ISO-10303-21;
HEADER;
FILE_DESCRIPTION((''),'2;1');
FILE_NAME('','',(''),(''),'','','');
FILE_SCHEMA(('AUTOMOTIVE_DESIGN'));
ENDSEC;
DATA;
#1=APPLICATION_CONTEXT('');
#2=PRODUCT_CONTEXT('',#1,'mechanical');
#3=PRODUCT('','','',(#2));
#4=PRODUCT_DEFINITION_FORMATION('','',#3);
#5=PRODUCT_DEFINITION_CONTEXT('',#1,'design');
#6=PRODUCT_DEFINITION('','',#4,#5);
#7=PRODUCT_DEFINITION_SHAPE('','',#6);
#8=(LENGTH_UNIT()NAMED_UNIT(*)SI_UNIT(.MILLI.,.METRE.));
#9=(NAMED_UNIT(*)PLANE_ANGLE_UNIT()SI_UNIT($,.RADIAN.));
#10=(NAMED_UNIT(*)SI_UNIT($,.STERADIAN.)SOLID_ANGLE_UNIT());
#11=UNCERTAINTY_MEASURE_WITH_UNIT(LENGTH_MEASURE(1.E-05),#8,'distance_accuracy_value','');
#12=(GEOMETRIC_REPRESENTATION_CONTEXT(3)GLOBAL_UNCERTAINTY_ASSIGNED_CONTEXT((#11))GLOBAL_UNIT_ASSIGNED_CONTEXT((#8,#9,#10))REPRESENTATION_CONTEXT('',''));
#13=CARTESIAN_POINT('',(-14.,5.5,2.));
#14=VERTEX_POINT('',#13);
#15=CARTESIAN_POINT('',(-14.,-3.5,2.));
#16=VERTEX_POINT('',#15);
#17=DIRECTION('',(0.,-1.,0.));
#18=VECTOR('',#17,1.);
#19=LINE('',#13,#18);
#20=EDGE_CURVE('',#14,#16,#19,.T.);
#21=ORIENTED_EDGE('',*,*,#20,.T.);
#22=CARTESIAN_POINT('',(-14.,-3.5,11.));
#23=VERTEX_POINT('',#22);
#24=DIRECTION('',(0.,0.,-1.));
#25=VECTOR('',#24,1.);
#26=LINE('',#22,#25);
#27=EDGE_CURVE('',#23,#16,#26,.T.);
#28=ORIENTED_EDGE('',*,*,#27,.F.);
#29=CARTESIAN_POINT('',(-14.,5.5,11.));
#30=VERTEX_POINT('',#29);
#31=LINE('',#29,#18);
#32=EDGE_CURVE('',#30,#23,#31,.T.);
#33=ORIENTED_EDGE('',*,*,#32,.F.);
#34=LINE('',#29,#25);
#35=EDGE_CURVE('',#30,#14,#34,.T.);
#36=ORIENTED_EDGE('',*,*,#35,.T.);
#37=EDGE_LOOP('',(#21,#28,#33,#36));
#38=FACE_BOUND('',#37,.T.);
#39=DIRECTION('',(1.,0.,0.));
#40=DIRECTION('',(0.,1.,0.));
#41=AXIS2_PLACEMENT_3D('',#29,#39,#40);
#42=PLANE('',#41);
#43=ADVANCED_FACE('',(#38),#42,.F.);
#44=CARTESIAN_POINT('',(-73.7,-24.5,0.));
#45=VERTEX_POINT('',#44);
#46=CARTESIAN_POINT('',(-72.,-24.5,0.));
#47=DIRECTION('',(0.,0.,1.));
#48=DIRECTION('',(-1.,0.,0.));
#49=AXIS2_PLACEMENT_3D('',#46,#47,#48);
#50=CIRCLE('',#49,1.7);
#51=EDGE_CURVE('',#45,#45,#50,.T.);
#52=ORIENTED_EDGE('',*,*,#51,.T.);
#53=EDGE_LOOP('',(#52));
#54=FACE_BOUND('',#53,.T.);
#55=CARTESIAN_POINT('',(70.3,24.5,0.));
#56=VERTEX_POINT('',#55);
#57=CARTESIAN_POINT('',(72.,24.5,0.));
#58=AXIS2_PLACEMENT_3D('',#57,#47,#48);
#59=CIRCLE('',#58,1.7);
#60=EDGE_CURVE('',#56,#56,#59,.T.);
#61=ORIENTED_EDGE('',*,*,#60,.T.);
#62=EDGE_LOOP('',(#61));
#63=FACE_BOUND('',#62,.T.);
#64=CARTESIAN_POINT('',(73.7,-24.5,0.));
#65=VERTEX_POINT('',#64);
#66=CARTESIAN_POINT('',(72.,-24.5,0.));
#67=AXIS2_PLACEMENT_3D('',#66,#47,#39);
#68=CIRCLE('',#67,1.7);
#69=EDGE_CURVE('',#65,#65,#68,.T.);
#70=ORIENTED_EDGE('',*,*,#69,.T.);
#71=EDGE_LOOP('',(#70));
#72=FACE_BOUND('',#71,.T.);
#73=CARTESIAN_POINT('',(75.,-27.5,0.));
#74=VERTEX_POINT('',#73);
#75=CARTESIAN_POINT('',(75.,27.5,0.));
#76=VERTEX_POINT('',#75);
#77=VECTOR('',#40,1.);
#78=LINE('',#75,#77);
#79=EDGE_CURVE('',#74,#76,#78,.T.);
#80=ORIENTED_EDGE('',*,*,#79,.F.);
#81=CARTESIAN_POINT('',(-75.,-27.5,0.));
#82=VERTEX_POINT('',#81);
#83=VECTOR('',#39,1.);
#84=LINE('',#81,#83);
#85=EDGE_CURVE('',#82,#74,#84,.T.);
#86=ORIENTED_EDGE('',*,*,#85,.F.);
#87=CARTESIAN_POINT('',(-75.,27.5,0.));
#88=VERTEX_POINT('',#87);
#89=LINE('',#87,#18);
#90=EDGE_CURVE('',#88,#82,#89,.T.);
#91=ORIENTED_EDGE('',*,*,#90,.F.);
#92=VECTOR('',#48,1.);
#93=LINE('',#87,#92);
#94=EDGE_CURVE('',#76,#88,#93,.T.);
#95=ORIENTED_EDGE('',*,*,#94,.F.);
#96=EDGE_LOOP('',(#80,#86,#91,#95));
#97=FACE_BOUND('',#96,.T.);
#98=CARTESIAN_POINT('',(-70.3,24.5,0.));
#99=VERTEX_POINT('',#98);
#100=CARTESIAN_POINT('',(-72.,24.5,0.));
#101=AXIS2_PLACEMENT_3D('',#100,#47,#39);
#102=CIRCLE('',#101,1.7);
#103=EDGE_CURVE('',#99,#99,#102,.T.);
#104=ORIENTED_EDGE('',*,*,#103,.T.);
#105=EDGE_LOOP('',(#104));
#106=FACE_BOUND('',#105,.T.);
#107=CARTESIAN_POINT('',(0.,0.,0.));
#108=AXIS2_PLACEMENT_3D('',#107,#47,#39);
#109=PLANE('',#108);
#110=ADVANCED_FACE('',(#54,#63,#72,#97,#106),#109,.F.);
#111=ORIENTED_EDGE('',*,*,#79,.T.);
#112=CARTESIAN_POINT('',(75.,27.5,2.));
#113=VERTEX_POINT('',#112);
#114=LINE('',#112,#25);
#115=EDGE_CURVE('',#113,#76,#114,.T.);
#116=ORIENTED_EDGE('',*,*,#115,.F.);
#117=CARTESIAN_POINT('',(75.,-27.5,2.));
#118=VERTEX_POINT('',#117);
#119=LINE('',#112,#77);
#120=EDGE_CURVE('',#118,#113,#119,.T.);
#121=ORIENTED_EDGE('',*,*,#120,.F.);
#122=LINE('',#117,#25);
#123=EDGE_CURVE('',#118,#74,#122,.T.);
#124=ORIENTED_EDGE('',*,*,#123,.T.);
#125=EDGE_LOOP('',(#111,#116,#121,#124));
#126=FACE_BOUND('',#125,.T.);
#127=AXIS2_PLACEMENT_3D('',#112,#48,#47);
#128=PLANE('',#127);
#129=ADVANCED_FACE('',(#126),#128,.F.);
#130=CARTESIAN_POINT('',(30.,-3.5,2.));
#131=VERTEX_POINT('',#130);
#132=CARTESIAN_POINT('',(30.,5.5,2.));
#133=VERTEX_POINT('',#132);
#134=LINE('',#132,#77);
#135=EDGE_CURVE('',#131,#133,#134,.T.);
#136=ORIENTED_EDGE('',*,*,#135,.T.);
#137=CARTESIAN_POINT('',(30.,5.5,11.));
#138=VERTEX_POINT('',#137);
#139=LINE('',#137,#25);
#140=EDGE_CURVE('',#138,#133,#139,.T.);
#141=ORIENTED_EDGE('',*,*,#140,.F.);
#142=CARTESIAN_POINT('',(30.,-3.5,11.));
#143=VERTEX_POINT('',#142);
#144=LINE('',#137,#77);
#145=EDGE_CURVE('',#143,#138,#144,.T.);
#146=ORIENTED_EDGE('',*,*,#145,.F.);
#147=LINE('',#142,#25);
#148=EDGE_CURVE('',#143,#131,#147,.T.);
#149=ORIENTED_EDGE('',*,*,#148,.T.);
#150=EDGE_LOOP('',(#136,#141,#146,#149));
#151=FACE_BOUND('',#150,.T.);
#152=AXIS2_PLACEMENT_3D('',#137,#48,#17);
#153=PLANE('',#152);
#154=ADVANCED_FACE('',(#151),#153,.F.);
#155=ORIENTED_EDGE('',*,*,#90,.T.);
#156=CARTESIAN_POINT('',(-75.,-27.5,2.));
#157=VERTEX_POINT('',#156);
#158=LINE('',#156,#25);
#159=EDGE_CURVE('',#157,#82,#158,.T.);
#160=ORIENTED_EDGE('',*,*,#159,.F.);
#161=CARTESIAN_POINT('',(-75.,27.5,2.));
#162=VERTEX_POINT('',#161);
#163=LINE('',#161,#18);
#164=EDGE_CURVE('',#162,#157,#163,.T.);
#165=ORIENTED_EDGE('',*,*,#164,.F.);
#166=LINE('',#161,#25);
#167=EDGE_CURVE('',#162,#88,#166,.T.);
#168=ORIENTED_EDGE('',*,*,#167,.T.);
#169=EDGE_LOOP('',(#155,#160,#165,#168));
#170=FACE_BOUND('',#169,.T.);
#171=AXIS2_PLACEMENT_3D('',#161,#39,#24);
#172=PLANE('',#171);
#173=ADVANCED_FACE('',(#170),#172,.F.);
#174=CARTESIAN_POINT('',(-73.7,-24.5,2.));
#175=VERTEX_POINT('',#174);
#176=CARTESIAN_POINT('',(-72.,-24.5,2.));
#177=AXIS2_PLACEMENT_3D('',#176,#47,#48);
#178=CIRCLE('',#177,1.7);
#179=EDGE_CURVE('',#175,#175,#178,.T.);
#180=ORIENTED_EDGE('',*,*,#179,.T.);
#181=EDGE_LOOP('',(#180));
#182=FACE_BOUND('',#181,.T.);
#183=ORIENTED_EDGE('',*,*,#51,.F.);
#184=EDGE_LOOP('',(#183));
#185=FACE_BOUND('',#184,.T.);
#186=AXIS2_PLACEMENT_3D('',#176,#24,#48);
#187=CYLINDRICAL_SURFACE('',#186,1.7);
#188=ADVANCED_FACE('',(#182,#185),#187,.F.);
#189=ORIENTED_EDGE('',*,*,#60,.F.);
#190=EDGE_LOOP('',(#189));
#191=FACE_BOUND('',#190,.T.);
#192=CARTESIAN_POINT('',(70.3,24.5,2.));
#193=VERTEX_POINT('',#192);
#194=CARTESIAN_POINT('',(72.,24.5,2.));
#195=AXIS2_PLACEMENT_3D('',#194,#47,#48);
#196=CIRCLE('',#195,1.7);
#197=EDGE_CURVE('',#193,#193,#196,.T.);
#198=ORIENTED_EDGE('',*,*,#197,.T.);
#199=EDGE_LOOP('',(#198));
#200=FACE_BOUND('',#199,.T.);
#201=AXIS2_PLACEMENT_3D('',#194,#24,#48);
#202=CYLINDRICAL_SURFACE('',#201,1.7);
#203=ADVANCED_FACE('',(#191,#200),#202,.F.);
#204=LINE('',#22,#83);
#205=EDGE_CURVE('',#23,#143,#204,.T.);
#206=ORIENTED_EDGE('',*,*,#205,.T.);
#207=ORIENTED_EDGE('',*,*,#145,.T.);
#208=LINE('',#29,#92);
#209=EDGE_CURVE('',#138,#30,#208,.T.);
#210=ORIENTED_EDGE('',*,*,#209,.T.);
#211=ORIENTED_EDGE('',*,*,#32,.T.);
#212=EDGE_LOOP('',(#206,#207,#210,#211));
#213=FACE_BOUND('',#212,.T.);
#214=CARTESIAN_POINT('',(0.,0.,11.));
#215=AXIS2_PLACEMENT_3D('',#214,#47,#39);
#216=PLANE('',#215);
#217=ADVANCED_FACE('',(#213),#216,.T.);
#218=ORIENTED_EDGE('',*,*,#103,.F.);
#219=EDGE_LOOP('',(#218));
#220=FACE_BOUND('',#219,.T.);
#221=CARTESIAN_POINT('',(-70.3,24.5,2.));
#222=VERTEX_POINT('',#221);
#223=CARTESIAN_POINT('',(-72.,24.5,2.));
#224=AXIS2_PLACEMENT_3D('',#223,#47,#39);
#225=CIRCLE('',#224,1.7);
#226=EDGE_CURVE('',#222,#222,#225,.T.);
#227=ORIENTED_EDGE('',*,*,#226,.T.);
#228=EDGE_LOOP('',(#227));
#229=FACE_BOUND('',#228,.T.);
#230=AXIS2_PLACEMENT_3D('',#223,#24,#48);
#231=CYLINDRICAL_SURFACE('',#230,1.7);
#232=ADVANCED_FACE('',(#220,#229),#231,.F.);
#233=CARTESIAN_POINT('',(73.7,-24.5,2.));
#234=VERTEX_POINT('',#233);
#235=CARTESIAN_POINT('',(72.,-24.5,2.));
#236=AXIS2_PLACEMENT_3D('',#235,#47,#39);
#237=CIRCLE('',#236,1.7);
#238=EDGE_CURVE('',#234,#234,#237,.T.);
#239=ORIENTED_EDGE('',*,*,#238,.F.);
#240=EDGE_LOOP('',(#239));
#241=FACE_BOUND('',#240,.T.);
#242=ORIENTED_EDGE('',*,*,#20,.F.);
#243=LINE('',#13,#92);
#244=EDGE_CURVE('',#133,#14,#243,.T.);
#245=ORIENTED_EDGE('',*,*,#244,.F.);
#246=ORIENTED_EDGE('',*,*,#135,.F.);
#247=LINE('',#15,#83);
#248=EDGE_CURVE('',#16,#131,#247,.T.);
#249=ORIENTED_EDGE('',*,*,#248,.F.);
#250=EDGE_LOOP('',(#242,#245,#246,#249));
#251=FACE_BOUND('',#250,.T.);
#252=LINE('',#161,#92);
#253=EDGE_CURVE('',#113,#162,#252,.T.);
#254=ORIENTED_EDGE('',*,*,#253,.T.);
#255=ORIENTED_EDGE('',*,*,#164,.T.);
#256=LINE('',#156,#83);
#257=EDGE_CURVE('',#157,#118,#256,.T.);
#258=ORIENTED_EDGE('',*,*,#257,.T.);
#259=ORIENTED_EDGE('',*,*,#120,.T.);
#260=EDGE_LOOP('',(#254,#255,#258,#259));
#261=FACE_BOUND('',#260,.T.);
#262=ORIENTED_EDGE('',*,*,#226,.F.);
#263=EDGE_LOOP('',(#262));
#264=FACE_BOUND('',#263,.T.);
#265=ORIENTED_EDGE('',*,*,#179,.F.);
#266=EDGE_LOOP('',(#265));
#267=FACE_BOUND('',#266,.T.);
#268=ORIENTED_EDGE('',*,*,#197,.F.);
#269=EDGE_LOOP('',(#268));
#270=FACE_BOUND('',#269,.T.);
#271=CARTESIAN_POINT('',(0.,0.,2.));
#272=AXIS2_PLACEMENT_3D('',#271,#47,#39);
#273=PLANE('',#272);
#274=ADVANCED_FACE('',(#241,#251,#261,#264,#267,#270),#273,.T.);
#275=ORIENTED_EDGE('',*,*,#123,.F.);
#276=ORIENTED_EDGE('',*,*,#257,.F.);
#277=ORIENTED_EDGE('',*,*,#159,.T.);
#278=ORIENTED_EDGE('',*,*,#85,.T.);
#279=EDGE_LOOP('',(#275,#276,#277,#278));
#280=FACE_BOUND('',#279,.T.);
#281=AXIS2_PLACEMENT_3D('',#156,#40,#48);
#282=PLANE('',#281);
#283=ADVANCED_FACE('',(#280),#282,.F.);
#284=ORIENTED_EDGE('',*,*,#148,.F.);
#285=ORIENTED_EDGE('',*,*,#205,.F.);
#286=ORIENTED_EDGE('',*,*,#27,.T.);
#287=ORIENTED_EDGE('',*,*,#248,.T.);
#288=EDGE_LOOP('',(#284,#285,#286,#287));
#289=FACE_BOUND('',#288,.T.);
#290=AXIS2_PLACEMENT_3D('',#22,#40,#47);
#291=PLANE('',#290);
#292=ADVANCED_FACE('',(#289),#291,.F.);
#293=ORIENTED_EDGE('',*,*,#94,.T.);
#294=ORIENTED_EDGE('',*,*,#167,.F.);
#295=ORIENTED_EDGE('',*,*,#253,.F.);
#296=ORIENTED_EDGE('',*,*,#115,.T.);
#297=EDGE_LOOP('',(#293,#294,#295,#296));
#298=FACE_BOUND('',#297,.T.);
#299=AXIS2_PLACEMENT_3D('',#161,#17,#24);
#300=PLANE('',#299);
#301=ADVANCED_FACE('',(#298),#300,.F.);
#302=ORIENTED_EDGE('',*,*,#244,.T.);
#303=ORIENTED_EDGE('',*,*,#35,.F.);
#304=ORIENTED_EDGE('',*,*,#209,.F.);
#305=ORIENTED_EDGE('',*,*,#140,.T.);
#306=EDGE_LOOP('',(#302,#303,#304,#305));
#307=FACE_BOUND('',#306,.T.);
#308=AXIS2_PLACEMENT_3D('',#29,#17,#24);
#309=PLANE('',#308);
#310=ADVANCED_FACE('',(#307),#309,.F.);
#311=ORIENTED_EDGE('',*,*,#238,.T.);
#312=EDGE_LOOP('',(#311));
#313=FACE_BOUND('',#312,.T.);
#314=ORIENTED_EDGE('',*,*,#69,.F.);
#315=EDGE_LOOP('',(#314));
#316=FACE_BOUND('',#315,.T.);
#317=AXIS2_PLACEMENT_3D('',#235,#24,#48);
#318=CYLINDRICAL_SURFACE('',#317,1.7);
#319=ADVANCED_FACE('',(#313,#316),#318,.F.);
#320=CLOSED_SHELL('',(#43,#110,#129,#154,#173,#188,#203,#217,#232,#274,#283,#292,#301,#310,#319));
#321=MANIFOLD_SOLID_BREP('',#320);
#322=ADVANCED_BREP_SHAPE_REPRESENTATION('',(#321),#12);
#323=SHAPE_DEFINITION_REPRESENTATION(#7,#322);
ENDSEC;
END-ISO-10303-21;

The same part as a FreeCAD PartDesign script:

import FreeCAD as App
import Part
import Sketcher
from FreeCAD import Vector
Q = App.Units.Quantity

doc = App.newDocument("Part")
body = doc.addObject("PartDesign::Body", "Body")

# Sketch on XY plane
sketch1 = body.newObject("Sketcher::SketchObject", "Sketch")
sketch1.AttachmentSupport = (doc.getObject("XY_Plane"), [""])
sketch1.MapMode = "FlatFace"
sketch1.addGeometry([
    Part.LineSegment(Vector(-75, 27.5, 0), Vector(-75, -27.5, 0)),  # 0
    Part.LineSegment(Vector(-75, -27.5, 0), Vector(75, -27.5, 0)),  # 1
    Part.LineSegment(Vector(75, -27.5, 0), Vector(75, 27.5, 0)),  # 2
    Part.LineSegment(Vector(75, 27.5, 0), Vector(-75, 27.5, 0)),  # 3
    Part.Circle(Vector(-72, -24.5, 0), Vector(0, 0, 1), 1.7),  # 4
    Part.Circle(Vector(72, -24.5, 0), Vector(0, 0, 1), 1.7),  # 5
    Part.Circle(Vector(-72, 24.5, 0), Vector(0, 0, 1), 1.7),  # 6
    Part.Circle(Vector(72, 24.5, 0), Vector(0, 0, 1), 1.7),  # 7
], False)
sketch1.addConstraint([
    Sketcher.Constraint("Coincident", 0, 2, 1, 1),
    Sketcher.Constraint("Coincident", 1, 2, 2, 1),
    Sketcher.Constraint("Coincident", 2, 2, 3, 1),
    Sketcher.Constraint("Coincident", 3, 2, 0, 1),
    Sketcher.Constraint("Vertical", 0),
    Sketcher.Constraint("Horizontal", 1),
    Sketcher.Constraint("Vertical", 2),
    Sketcher.Constraint("Horizontal", 3),
    Sketcher.Constraint("Equal", 4, 5),
    Sketcher.Constraint("Equal", 5, 6),
    Sketcher.Constraint("Equal", 6, 7),
    Sketcher.Constraint("Symmetric", 5, 3, 6, 3, -1, 1),
    Sketcher.Constraint("Symmetric", 4, 3, 7, 3, -1, 1),
    Sketcher.Constraint("Symmetric", 0, 2, 2, 2, -1, 1),
    Sketcher.Constraint("Symmetric", 4, 3, 5, 3, -2),
    Sketcher.Constraint("Diameter", 4, Q("3.4 mm")),
    Sketcher.Constraint("DistanceX", 1, 1, 1, 2, Q("150 mm")),
    Sketcher.Constraint("DistanceY", 0, 2, 0, 1, Q("55 mm")),
    Sketcher.Constraint("DistanceX", 4, 3, -1, 1, Q("72 mm")),
    Sketcher.Constraint("DistanceY", 4, 3, 6, 3, Q("49 mm")),
])
pad1 = body.newObject("PartDesign::Pad", "Pad")
pad1.Profile = sketch1
pad1.Length = 2

# Sketch on XY plane
sketch2 = body.newObject("Sketcher::SketchObject", "Sketch001")
sketch2.AttachmentSupport = (doc.getObject("XY_Plane"), [""])
sketch2.MapMode = "FlatFace"
sketch2.AttachmentOffset = App.Placement(Vector(0, 0, 2), App.Rotation())
sketch2.addGeometry([
    Part.LineSegment(Vector(-14, 6, 0), Vector(-14, -4, 0)),
    Part.LineSegment(Vector(-14, -4, 0), Vector(30, -4, 0)),
    Part.LineSegment(Vector(30, -4, 0), Vector(30, 6, 0)),
    Part.LineSegment(Vector(30, 6, 0), Vector(-14, 6, 0)),
], False)
sketch2.addConstraint([
    Sketcher.Constraint("Coincident", 0, 2, 1, 1),
    Sketcher.Constraint("Coincident", 1, 2, 2, 1),
    Sketcher.Constraint("Coincident", 2, 2, 3, 1),
    Sketcher.Constraint("Coincident", 3, 2, 0, 1),
    Sketcher.Constraint("Vertical", 0),
    Sketcher.Constraint("Horizontal", 1),
    Sketcher.Constraint("Vertical", 2),
    Sketcher.Constraint("Horizontal", 3),
    Sketcher.Constraint("DistanceX", 1, 1, 1, 2, Q("44 mm")),
    Sketcher.Constraint("DistanceY", 0, 2, 0, 1, Q("9 mm")),
    Sketcher.Constraint("DistanceX", 0, 2, -1, 1, Q("14 mm")),
    Sketcher.Constraint("DistanceY", 0, 2, -1, 1, Q("3.5 mm")),
])
pad2 = body.newObject("PartDesign::Pad", "Pad001")
pad2.Profile = sketch2
pad2.Length = 9

doc.recompute()
